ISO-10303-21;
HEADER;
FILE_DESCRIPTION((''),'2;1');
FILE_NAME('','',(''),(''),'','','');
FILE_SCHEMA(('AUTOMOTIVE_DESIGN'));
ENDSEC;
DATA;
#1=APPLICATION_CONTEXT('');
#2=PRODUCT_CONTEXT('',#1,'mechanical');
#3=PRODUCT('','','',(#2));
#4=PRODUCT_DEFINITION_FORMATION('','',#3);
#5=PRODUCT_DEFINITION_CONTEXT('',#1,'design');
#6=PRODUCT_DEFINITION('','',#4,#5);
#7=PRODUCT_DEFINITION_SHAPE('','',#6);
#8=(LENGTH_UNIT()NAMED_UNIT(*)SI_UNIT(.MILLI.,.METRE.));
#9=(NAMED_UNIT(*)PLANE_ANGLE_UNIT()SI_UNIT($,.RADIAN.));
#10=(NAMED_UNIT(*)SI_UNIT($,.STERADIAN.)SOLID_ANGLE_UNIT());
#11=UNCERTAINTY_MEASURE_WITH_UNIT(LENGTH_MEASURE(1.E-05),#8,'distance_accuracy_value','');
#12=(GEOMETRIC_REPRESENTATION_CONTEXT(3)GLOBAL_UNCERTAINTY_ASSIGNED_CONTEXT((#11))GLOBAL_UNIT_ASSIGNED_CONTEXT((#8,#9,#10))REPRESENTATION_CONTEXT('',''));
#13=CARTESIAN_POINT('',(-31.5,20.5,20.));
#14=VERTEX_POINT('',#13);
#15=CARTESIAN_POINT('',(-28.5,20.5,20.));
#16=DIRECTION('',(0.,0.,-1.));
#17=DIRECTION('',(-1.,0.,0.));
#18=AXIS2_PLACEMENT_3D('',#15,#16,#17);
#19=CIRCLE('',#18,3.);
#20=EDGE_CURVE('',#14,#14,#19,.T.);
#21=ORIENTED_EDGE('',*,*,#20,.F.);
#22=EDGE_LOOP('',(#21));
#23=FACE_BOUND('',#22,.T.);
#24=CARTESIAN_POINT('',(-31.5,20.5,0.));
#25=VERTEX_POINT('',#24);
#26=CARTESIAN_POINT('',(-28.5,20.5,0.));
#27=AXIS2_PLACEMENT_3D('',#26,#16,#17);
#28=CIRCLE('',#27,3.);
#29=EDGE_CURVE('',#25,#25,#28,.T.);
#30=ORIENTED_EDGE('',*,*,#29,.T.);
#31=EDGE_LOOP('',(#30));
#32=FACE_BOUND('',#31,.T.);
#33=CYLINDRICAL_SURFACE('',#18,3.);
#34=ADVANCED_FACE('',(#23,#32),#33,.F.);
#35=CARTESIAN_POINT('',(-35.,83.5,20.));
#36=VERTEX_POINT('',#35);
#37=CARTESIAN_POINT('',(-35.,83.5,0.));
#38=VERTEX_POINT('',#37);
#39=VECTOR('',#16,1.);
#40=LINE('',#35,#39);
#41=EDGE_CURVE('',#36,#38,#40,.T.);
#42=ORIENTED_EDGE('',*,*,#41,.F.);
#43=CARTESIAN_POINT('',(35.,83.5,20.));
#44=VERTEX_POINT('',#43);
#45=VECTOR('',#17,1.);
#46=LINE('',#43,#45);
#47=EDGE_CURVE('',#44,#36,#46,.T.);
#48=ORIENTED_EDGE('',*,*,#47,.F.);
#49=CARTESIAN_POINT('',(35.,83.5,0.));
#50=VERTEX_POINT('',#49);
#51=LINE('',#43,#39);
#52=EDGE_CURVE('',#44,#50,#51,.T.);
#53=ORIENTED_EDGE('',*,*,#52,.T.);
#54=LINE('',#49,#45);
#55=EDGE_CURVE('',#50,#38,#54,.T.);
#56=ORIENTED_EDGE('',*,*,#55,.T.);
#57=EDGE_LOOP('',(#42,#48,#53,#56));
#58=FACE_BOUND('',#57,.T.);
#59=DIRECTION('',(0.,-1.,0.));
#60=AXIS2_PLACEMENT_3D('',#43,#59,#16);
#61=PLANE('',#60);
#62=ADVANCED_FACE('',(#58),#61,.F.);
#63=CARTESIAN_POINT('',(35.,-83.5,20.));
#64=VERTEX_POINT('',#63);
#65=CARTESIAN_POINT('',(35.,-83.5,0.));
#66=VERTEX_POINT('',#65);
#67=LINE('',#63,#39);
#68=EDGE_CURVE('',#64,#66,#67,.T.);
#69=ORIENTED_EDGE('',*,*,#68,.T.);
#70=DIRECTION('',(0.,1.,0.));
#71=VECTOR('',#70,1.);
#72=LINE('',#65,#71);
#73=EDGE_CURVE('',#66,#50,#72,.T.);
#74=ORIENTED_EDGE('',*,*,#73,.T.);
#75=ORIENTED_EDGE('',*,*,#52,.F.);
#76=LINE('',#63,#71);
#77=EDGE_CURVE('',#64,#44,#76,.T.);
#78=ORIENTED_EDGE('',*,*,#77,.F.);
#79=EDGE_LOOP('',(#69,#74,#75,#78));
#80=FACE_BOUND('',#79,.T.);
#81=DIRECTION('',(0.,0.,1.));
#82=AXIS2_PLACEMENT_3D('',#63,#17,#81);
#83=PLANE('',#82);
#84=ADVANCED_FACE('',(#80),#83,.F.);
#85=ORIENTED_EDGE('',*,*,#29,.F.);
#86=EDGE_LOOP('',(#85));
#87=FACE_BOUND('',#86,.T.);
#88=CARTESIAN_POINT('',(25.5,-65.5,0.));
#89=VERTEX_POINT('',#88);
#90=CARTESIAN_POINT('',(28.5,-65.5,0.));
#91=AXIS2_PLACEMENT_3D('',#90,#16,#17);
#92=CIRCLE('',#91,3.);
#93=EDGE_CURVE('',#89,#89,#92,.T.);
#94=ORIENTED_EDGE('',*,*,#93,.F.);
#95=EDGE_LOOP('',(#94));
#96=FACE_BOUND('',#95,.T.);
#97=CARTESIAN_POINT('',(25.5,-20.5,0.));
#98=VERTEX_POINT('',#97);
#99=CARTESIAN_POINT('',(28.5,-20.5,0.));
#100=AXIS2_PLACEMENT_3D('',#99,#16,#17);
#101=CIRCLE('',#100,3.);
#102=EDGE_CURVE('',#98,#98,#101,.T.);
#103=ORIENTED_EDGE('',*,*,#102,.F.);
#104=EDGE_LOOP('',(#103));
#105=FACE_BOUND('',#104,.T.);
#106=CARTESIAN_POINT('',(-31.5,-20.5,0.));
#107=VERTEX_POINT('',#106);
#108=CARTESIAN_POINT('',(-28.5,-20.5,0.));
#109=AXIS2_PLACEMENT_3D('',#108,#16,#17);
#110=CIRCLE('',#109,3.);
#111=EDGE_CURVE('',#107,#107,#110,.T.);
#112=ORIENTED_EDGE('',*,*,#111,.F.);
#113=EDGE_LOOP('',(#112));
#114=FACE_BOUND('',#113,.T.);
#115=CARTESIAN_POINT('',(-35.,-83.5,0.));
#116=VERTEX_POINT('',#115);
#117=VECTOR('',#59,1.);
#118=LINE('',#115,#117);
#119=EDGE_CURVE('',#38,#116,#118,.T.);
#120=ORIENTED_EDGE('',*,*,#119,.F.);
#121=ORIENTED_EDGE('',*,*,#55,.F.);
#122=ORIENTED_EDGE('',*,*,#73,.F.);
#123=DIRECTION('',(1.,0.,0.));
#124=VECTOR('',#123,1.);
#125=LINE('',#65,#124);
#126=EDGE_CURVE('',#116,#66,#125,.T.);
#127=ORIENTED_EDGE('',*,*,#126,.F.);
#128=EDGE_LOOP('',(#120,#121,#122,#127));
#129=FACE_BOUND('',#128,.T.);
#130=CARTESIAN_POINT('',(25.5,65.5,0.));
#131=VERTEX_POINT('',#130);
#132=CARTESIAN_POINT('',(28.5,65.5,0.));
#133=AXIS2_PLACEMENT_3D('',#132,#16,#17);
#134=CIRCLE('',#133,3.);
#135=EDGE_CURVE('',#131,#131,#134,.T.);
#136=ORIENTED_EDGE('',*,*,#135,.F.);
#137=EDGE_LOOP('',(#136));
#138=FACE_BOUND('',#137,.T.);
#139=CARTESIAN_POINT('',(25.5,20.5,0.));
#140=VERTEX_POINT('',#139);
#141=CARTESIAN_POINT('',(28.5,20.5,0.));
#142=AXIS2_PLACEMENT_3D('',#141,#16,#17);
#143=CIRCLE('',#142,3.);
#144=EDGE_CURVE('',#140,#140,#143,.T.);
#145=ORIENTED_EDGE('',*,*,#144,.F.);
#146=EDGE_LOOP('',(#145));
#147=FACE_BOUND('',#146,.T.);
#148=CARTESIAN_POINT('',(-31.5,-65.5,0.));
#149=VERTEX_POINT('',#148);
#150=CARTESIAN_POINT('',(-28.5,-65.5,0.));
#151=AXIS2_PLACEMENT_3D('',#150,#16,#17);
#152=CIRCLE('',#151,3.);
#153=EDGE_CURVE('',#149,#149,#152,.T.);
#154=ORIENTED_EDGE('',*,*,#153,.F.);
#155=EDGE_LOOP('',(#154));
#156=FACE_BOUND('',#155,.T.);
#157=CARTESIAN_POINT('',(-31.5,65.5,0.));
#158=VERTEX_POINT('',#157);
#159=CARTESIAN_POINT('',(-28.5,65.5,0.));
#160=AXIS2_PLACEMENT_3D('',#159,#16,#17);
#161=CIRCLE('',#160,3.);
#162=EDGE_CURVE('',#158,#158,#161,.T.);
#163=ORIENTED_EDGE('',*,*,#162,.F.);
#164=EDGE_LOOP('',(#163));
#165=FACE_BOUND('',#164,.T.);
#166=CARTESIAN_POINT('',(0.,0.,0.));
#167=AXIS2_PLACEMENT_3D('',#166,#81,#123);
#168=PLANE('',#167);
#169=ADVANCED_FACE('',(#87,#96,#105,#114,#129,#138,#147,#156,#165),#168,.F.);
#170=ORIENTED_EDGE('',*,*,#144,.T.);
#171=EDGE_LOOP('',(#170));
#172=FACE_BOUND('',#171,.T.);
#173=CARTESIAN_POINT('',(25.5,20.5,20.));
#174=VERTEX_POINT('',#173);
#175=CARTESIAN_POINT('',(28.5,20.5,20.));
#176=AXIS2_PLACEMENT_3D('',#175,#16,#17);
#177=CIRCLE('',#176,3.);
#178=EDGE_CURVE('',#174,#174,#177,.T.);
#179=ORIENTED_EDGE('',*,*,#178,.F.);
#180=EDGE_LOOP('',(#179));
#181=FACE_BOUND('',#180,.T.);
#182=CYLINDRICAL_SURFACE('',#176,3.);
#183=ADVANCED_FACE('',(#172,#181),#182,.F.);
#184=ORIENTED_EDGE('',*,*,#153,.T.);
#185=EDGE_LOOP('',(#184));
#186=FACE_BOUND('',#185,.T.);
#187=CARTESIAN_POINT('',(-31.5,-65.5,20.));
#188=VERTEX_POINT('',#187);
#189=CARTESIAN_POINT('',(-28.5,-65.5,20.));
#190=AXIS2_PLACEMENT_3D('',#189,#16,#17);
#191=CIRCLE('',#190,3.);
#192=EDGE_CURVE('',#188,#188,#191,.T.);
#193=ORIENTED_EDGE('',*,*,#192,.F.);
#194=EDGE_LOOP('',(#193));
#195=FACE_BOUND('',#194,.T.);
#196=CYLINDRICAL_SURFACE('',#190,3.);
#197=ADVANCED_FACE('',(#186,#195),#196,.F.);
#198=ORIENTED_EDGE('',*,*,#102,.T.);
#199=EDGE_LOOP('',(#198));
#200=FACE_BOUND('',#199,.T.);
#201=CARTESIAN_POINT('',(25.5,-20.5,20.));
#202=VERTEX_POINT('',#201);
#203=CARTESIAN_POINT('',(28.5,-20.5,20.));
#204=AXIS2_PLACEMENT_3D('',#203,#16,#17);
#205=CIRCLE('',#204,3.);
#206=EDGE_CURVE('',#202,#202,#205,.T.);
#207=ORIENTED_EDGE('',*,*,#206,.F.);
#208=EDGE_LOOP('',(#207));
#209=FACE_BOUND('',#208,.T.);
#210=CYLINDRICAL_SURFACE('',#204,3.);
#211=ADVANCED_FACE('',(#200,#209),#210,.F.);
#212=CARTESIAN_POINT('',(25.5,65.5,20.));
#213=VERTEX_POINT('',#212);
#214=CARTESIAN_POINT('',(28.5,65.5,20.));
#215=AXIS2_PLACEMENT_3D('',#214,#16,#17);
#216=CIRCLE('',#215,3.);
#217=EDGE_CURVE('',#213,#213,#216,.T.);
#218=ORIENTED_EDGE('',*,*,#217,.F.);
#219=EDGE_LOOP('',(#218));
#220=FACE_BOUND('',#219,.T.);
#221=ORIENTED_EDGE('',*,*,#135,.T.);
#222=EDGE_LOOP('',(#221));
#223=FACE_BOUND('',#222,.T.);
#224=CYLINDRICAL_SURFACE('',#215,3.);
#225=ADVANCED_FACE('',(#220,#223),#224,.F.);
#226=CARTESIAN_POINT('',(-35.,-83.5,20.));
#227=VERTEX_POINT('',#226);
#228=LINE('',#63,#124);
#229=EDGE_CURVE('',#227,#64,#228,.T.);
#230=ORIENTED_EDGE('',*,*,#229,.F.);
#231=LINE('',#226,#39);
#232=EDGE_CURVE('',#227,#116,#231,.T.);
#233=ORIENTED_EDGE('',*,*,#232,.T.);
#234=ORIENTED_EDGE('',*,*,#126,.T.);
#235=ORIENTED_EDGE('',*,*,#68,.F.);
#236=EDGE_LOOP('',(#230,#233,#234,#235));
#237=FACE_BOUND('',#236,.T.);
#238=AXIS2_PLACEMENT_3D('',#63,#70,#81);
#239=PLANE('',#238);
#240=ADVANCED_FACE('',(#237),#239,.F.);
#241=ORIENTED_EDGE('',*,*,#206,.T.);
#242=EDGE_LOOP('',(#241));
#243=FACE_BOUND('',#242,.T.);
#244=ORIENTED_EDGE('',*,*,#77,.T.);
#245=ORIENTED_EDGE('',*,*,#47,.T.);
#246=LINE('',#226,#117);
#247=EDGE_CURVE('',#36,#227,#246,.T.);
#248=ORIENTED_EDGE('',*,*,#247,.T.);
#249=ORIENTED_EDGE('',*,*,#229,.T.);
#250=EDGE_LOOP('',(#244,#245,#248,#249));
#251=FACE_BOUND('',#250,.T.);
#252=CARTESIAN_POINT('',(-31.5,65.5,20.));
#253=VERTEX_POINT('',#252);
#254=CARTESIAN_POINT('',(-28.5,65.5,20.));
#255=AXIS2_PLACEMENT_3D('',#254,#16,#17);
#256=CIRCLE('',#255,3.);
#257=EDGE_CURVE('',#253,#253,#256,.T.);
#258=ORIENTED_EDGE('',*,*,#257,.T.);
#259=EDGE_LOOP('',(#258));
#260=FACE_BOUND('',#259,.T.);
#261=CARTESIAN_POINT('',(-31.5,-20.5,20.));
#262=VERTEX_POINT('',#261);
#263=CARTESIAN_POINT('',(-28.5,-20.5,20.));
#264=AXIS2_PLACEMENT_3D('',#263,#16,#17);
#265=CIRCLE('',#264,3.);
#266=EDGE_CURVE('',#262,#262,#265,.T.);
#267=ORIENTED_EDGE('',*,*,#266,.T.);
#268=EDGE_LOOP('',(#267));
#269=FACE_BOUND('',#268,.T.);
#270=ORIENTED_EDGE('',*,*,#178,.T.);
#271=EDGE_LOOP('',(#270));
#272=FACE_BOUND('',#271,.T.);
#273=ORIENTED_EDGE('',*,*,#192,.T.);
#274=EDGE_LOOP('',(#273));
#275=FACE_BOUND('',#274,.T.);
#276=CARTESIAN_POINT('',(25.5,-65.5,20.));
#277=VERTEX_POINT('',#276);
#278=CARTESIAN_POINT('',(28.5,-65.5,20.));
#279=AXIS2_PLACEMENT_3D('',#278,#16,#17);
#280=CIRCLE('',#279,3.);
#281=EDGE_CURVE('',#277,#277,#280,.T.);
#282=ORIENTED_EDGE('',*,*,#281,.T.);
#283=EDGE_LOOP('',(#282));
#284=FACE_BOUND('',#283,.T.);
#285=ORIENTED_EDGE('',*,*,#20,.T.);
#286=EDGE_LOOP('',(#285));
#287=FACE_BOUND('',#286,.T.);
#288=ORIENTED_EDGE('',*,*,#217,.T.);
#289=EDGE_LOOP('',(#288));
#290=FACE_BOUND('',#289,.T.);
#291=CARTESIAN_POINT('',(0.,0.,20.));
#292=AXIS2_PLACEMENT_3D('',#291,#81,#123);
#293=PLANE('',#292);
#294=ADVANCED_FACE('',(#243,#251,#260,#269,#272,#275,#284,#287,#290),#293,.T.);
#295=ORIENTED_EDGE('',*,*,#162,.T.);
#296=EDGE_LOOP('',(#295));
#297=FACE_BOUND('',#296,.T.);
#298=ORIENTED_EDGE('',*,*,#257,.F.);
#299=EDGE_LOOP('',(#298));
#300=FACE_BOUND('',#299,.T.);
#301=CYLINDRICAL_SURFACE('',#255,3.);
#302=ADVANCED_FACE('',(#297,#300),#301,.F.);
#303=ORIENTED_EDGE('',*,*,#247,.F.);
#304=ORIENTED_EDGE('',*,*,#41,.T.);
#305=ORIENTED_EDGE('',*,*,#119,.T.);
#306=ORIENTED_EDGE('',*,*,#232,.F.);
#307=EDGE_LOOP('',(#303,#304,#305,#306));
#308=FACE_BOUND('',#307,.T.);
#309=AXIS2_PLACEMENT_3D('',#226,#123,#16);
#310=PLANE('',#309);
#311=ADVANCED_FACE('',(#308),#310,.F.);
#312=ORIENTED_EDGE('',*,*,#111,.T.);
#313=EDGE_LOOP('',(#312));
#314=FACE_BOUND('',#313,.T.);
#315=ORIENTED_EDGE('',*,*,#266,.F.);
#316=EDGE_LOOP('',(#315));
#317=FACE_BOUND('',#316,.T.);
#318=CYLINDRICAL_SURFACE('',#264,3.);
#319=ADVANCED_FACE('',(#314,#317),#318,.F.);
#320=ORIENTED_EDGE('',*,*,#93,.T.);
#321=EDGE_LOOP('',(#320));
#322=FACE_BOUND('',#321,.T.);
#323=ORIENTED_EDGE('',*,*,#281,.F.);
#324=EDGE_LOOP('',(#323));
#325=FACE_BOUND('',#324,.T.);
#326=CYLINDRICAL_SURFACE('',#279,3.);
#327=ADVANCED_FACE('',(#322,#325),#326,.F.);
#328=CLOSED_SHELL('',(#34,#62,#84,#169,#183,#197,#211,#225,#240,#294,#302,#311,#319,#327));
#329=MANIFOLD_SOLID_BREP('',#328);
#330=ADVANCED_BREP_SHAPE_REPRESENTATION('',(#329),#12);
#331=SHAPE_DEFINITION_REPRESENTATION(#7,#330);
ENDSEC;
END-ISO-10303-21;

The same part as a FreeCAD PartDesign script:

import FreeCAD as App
import Part
import Sketcher

V = App.Vector
Q = App.Units.Quantity


def add_polygon(sketch, points):
    """Adds a closed chain of lines whose ends are joined by coincident constraints."""
    first, n = sketch.GeometryCount, len(points)
    for a, b in zip(points, points[1:] + points[:1]):
        sketch.addGeometry(Part.LineSegment(App.Vector(*a, 0), App.Vector(*b, 0)), False)
    for i in range(n):
        sketch.addConstraint(Sketcher.Constraint("Coincident", first + i, 2, first + (i + 1) % n, 1))

doc = App.newDocument("Part")
body = doc.addObject("PartDesign::Body", "Body")

# Sketch on XY plane
sketch1 = body.newObject("Sketcher::SketchObject", "Sketch")
sketch1.AttachmentSupport = (doc.getObject("XY_Plane"), [""])
sketch1.MapMode = "FlatFace"
add_polygon(sketch1, [(-35, 84), (-35, -84), (35, -84), (35, 84)])  # lines 0-3
sketch1.addConstraint(Sketcher.Constraint("Vertical", 0))
sketch1.addConstraint(Sketcher.Constraint("Horizontal", 1))
sketch1.addConstraint(Sketcher.Constraint("Vertical", 2))
sketch1.addConstraint(Sketcher.Constraint("Horizontal", 3))
sketch1.addConstraint(Sketcher.Constraint("Symmetric", 0, 2, 2, 2, -1, 1))
sketch1.addConstraint(Sketcher.Constraint("DistanceX", 1, 1, 1, 2, Q("70 mm")))
sketch1.addConstraint(Sketcher.Constraint("DistanceY", 0, 2, 0, 1, Q("167 mm")))
pad1 = body.newObject("PartDesign::Pad", "Pad")
pad1.Profile = sketch1
pad1.Length = 20

# Sketch on XY plane
sketch2 = body.newObject("Sketcher::SketchObject", "Sketch001")
sketch2.AttachmentSupport = (doc.getObject("XY_Plane"), [""])
sketch2.MapMode = "FlatFace"
sketch2.addGeometry(Part.Circle(V(28.5, 65.5, 0), V(0, 0, 1), 3), False)
sketch2.addGeometry(Part.Circle(V(-28.5, 65.5, 0), V(0, 0, 1), 3), False)
sketch2.addGeometry(Part.Circle(V(28.5, 20.5, 0), V(0, 0, 1), 3), False)
sketch2.addGeometry(Part.Circle(V(-28.5, 20.5, 0), V(0, 0, 1), 3), False)
sketch2.addGeometry(Part.Circle(V(28.5, -20.5, 0), V(0, 0, 1), 3), False)
sketch2.addGeometry(Part.Circle(V(-28.5, -20.5, 0), V(0, 0, 1), 3), False)
sketch2.addGeometry(Part.Circle(V(28.5, -65.5, 0), V(0, 0, 1), 3), False)
sketch2.addGeometry(Part.Circle(V(-28.5, -65.5, 0), V(0, 0, 1), 3), False)
sketch2.addConstraint(Sketcher.Constraint("Equal", 0, 1))
sketch2.addConstraint(Sketcher.Constraint("Equal", 1, 2))
sketch2.addConstraint(Sketcher.Constraint("Equal", 2, 3))
sketch2.addConstraint(Sketcher.Constraint("Equal", 3, 4))
sketch2.addConstraint(Sketcher.Constraint("Equal", 4, 5))
sketch2.addConstraint(Sketcher.Constraint("Equal", 5, 6))
sketch2.addConstraint(Sketcher.Constraint("Equal", 6, 7))
sketch2.addConstraint(Sketcher.Constraint("Symmetric", 3, 3, 4, 3, -1, 1))
sketch2.addConstraint(Sketcher.Constraint("Symmetric", 2, 3, 5, 3, -1, 1))
sketch2.addConstraint(Sketcher.Constraint("Symmetric", 1, 3, 6, 3, -1, 1))
sketch2.addConstraint(Sketcher.Constraint("Symmetric", 0, 3, 7, 3, -1, 1))
sketch2.addConstraint(Sketcher.Constraint("Symmetric", 0, 3, 1, 3, -2))
sketch2.addConstraint(Sketcher.Constraint("Symmetric", 2, 3, 3, 3, -2))
sketch2.addConstraint(Sketcher.Constraint("Vertical", 0, 3, 2, 3))
sketch2.addConstraint(Sketcher.Constraint("Diameter", 0, Q("6 mm")))
sketch2.addConstraint(Sketcher.Constraint("DistanceX", 1, 3, 0, 3, Q("57 mm")))
sketch2.addConstraint(Sketcher.Constraint("DistanceY", 2, 3, 0, 3, Q("45 mm")))
sketch2.addConstraint(Sketcher.Constraint("DistanceY", 4, 3, 2, 3, Q("41 mm")))
pocket1 = body.newObject("PartDesign::Pocket", "Pocket")
pocket1.Profile = sketch2
pocket1.Length = 20
pocket1.Reversed = True

doc.recompute()
